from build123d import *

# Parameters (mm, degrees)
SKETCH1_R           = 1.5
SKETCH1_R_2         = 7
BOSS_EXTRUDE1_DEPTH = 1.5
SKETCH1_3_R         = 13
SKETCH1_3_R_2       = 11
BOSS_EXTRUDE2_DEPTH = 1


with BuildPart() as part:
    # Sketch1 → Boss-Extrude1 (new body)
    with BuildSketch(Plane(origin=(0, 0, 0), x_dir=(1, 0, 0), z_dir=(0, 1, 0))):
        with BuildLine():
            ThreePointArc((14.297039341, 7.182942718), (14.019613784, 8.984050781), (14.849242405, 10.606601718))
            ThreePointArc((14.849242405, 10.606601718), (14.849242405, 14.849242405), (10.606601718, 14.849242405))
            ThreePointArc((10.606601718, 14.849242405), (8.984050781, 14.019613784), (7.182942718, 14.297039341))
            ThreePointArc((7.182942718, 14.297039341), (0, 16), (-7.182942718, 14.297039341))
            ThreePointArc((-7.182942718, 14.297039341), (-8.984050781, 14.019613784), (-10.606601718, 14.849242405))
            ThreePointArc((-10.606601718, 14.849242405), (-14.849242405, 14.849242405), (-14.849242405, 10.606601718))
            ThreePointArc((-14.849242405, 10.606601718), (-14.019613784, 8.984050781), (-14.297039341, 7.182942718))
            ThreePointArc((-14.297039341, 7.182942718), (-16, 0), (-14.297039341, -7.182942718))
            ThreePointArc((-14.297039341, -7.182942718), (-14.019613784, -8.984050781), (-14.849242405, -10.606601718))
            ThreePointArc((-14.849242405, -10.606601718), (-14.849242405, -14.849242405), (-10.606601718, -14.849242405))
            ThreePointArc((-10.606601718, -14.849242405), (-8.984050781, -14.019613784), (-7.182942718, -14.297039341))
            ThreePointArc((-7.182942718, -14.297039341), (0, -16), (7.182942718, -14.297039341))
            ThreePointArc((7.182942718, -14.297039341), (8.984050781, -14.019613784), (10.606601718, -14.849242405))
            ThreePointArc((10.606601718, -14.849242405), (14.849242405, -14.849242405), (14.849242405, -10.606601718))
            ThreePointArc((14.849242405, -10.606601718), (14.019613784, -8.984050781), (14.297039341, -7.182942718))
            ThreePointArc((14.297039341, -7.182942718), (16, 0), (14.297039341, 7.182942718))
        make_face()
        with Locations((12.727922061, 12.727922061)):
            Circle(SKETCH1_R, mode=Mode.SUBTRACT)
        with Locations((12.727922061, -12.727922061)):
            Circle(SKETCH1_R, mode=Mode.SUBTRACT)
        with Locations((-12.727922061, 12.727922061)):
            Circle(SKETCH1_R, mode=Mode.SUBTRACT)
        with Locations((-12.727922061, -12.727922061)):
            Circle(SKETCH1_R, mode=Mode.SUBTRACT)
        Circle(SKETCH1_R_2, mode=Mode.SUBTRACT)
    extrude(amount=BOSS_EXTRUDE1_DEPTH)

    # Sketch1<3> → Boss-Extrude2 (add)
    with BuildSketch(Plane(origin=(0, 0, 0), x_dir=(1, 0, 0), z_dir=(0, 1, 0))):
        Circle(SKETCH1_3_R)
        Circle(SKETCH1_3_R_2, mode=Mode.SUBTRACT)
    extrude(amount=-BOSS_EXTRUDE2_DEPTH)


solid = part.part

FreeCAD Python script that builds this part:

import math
import FreeCAD as App
import Part
import Sketcher
from FreeCAD import Vector
Q = App.Units.Quantity

doc = App.newDocument("Part")
body = doc.addObject("PartDesign::Body", "Body")

sketch1 = doc.addObject("Sketcher::SketchObject", "Sketch")
body.addObject(sketch1)
sketch1.AttachmentSupport = (doc.XZ_Plane, [""])
sketch1.MapMode = "FlatFace"
sketch1.addGeometry([
    Part.ArcOfCircle(Part.Circle(Vector(16.9, -8.5, 0), Vector(0, 0, 1), 3), math.radians(153), math.radians(225)),
    Part.ArcOfCircle(Part.Circle(Vector(12.7, -12.7, 0), Vector(0, 0, 1), 3), math.radians(-135), math.radians(45)),
    Part.ArcOfCircle(Part.Circle(Vector(8.5, -16.9, 0), Vector(0, 0, 1), 3), math.radians(45), math.radians(117)),
    Part.ArcOfCircle(Part.Circle(Vector(0, 0, 0), Vector(0, 0, 1), 16), math.radians(-117), math.radians(-63)),
    Part.ArcOfCircle(Part.Circle(Vector(-8.5, -16.9, 0), Vector(0, 0, 1), 3), math.radians(63), math.radians(135)),
    Part.ArcOfCircle(Part.Circle(Vector(-12.7, -12.7, 0), Vector(0, 0, 1), 3), math.radians(135), math.radians(315)),
    Part.ArcOfCircle(Part.Circle(Vector(-16.9, -8.5, 0), Vector(0, 0, 1), 3), math.radians(-45), math.radians(27)),
    Part.ArcOfCircle(Part.Circle(Vector(0, 0, 0), Vector(0, 0, 1), 16), math.radians(153), math.radians(207)),
    Part.ArcOfCircle(Part.Circle(Vector(-16.9, 8.5, 0), Vector(0, 0, 1), 3), math.radians(-27), math.radians(45)),
    Part.ArcOfCircle(Part.Circle(Vector(-12.7, 12.7, 0), Vector(0, 0, 1), 3), math.radians(45), math.radians(225)),
    Part.ArcOfCircle(Part.Circle(Vector(-8.5, 16.9, 0), Vector(0, 0, 1), 3), math.radians(-135), math.radians(-63)),
    Part.ArcOfCircle(Part.Circle(Vector(0, 0, 0), Vector(0, 0, 1), 16), math.radians(63), math.radians(117)),
    Part.ArcOfCircle(Part.Circle(Vector(8.5, 16.9, 0), Vector(0, 0, 1), 3), math.radians(-117), math.radians(-45)),
    Part.ArcOfCircle(Part.Circle(Vector(12.7, 12.7, 0), Vector(0, 0, 1), 3), math.radians(-45), math.radians(135)),
    Part.ArcOfCircle(Part.Circle(Vector(16.9, 8.5, 0), Vector(0, 0, 1), 3), math.radians(135), math.radians(207)),
    Part.ArcOfCircle(Part.Circle(Vector(0, 0, 0), Vector(0, 0, 1), 16), math.radians(-27), math.radians(27)),
    Part.Circle(Vector(-12.7, 12.7, 0), Vector(0, 0, 1), 1.5),
    Part.Circle(Vector(12.7, 12.7, 0), Vector(0, 0, 1), 1.5),
    Part.Circle(Vector(0, 0, 0), Vector(0, 0, 1), 7),
    Part.Circle(Vector(-12.7, -12.7, 0), Vector(0, 0, 1), 1.5),
    Part.Circle(Vector(12.7, -12.7, 0), Vector(0, 0, 1), 1.5),
], False)
sketch1.addConstraint([
    Sketcher.Constraint("Tangent", 0, 2, 1, 2),
    Sketcher.Constraint("Tangent", 1, 1, 2, 1),
    Sketcher.Constraint("Tangent", 2, 2, 3, 2),
    Sketcher.Constraint("Tangent", 3, 1, 4, 1),
    Sketcher.Constraint("Tangent", 4, 2, 5, 2),
    Sketcher.Constraint("Tangent", 5, 1, 6, 1),
    Sketcher.Constraint("Tangent", 6, 2, 7, 2),
    Sketcher.Constraint("Tangent", 7, 1, 8, 1),
    Sketcher.Constraint("Tangent", 8, 2, 9, 2),
    Sketcher.Constraint("Tangent", 9, 1, 10, 1),
    Sketcher.Constraint("Tangent", 10, 2, 11, 2),
    Sketcher.Constraint("Tangent", 11, 1, 12, 1),
    Sketcher.Constraint("Tangent", 12, 2, 13, 2),
    Sketcher.Constraint("Tangent", 13, 1, 14, 1),
    Sketcher.Constraint("Tangent", 14, 2, 15, 2),
    Sketcher.Constraint("Tangent", 15, 1, 0, 1),
    Sketcher.Constraint("Coincident", 3, 3, -1, 1),
    Sketcher.Constraint("Coincident", 7, 3, -1, 1),
    Sketcher.Constraint("Coincident", 11, 3, -1, 1),
    Sketcher.Constraint("Coincident", 15, 3, -1, 1),
    Sketcher.Constraint("Coincident", 18, 3, -1, 1),
    Sketcher.Constraint("Coincident", 16, 3, 9, 3),
    Sketcher.Constraint("Coincident", 17, 3, 13, 3),
    Sketcher.Constraint("Coincident", 19, 3, 5, 3),
    Sketcher.Constraint("Coincident", 20, 3, 1, 3),
    Sketcher.Constraint("Equal", 0, 2),
    Sketcher.Constraint("Equal", 2, 4),
    Sketcher.Constraint("Equal", 1, 5),
    Sketcher.Constraint("Equal", 4, 6),
    Sketcher.Constraint("Equal", 3, 7),
    Sketcher.Constraint("Equal", 6, 8),
    Sketcher.Constraint("Equal", 5, 9),
    Sketcher.Constraint("Equal", 8, 10),
    Sketcher.Constraint("Equal", 7, 11),
    Sketcher.Constraint("Equal", 10, 12),
    Sketcher.Constraint("Equal", 9, 13),
    Sketcher.Constraint("Equal", 12, 14),
    Sketcher.Constraint("Equal", 11, 15),
    Sketcher.Constraint("Equal", 16, 17),
    Sketcher.Constraint("Equal", 17, 19),
    Sketcher.Constraint("Equal", 19, 20),
    Sketcher.Constraint("Symmetric", 1, 3, 9, 3, -1, 1),
    Sketcher.Constraint("Symmetric", 5, 3, 13, 3, -1, 1),
    Sketcher.Constraint("Symmetric", 1, 3, 5, 3, -2),
    Sketcher.Constraint("Diameter", 16, Q("3 mm")),
    Sketcher.Constraint("Diameter", 18, Q("14 mm")),
    Sketcher.Constraint("Radius", 1, Q("3 mm")),
    Sketcher.Constraint("Radius", 3, Q("16 mm")),
    Sketcher.Constraint("Radius", 0, Q("2.961538 mm")),
    Sketcher.Constraint("DistanceY", 0, 2, -1, 1, Q("10.606602 mm")),
    Sketcher.Constraint("DistanceX", -1, 1, 1, 1, Q("10.606602 mm")),
])
pad1 = doc.addObject("PartDesign::Pad", "Pad")
body.addObject(pad1)
pad1.Profile = sketch1
pad1.Length = 1.5
pad1.Reversed = True

sketch2 = doc.addObject("Sketcher::SketchObject", "Sketch001")
body.addObject(sketch2)
sketch2.AttachmentSupport = (doc.XZ_Plane, [""])
sketch2.MapMode = "FlatFace"
sketch2.addGeometry([
    Part.Circle(Vector(0, 0, 0), Vector(0, 0, 1), 13),
    Part.Circle(Vector(0, 0, 0), Vector(0, 0, 1), 11),
], False)
sketch2.addConstraint([
    Sketcher.Constraint("Coincident", 0, 3, -1, 1),
    Sketcher.Constraint("Coincident", 1, 3, -1, 1),
    Sketcher.Constraint("Diameter", 0, Q("26 mm")),
    Sketcher.Constraint("Diameter", 1, Q("22 mm")),
])
pad2 = doc.addObject("PartDesign::Pad", "Pad001")
body.addObject(pad2)
pad2.Profile = sketch2
pad2.Length = 1

doc.recompute()
